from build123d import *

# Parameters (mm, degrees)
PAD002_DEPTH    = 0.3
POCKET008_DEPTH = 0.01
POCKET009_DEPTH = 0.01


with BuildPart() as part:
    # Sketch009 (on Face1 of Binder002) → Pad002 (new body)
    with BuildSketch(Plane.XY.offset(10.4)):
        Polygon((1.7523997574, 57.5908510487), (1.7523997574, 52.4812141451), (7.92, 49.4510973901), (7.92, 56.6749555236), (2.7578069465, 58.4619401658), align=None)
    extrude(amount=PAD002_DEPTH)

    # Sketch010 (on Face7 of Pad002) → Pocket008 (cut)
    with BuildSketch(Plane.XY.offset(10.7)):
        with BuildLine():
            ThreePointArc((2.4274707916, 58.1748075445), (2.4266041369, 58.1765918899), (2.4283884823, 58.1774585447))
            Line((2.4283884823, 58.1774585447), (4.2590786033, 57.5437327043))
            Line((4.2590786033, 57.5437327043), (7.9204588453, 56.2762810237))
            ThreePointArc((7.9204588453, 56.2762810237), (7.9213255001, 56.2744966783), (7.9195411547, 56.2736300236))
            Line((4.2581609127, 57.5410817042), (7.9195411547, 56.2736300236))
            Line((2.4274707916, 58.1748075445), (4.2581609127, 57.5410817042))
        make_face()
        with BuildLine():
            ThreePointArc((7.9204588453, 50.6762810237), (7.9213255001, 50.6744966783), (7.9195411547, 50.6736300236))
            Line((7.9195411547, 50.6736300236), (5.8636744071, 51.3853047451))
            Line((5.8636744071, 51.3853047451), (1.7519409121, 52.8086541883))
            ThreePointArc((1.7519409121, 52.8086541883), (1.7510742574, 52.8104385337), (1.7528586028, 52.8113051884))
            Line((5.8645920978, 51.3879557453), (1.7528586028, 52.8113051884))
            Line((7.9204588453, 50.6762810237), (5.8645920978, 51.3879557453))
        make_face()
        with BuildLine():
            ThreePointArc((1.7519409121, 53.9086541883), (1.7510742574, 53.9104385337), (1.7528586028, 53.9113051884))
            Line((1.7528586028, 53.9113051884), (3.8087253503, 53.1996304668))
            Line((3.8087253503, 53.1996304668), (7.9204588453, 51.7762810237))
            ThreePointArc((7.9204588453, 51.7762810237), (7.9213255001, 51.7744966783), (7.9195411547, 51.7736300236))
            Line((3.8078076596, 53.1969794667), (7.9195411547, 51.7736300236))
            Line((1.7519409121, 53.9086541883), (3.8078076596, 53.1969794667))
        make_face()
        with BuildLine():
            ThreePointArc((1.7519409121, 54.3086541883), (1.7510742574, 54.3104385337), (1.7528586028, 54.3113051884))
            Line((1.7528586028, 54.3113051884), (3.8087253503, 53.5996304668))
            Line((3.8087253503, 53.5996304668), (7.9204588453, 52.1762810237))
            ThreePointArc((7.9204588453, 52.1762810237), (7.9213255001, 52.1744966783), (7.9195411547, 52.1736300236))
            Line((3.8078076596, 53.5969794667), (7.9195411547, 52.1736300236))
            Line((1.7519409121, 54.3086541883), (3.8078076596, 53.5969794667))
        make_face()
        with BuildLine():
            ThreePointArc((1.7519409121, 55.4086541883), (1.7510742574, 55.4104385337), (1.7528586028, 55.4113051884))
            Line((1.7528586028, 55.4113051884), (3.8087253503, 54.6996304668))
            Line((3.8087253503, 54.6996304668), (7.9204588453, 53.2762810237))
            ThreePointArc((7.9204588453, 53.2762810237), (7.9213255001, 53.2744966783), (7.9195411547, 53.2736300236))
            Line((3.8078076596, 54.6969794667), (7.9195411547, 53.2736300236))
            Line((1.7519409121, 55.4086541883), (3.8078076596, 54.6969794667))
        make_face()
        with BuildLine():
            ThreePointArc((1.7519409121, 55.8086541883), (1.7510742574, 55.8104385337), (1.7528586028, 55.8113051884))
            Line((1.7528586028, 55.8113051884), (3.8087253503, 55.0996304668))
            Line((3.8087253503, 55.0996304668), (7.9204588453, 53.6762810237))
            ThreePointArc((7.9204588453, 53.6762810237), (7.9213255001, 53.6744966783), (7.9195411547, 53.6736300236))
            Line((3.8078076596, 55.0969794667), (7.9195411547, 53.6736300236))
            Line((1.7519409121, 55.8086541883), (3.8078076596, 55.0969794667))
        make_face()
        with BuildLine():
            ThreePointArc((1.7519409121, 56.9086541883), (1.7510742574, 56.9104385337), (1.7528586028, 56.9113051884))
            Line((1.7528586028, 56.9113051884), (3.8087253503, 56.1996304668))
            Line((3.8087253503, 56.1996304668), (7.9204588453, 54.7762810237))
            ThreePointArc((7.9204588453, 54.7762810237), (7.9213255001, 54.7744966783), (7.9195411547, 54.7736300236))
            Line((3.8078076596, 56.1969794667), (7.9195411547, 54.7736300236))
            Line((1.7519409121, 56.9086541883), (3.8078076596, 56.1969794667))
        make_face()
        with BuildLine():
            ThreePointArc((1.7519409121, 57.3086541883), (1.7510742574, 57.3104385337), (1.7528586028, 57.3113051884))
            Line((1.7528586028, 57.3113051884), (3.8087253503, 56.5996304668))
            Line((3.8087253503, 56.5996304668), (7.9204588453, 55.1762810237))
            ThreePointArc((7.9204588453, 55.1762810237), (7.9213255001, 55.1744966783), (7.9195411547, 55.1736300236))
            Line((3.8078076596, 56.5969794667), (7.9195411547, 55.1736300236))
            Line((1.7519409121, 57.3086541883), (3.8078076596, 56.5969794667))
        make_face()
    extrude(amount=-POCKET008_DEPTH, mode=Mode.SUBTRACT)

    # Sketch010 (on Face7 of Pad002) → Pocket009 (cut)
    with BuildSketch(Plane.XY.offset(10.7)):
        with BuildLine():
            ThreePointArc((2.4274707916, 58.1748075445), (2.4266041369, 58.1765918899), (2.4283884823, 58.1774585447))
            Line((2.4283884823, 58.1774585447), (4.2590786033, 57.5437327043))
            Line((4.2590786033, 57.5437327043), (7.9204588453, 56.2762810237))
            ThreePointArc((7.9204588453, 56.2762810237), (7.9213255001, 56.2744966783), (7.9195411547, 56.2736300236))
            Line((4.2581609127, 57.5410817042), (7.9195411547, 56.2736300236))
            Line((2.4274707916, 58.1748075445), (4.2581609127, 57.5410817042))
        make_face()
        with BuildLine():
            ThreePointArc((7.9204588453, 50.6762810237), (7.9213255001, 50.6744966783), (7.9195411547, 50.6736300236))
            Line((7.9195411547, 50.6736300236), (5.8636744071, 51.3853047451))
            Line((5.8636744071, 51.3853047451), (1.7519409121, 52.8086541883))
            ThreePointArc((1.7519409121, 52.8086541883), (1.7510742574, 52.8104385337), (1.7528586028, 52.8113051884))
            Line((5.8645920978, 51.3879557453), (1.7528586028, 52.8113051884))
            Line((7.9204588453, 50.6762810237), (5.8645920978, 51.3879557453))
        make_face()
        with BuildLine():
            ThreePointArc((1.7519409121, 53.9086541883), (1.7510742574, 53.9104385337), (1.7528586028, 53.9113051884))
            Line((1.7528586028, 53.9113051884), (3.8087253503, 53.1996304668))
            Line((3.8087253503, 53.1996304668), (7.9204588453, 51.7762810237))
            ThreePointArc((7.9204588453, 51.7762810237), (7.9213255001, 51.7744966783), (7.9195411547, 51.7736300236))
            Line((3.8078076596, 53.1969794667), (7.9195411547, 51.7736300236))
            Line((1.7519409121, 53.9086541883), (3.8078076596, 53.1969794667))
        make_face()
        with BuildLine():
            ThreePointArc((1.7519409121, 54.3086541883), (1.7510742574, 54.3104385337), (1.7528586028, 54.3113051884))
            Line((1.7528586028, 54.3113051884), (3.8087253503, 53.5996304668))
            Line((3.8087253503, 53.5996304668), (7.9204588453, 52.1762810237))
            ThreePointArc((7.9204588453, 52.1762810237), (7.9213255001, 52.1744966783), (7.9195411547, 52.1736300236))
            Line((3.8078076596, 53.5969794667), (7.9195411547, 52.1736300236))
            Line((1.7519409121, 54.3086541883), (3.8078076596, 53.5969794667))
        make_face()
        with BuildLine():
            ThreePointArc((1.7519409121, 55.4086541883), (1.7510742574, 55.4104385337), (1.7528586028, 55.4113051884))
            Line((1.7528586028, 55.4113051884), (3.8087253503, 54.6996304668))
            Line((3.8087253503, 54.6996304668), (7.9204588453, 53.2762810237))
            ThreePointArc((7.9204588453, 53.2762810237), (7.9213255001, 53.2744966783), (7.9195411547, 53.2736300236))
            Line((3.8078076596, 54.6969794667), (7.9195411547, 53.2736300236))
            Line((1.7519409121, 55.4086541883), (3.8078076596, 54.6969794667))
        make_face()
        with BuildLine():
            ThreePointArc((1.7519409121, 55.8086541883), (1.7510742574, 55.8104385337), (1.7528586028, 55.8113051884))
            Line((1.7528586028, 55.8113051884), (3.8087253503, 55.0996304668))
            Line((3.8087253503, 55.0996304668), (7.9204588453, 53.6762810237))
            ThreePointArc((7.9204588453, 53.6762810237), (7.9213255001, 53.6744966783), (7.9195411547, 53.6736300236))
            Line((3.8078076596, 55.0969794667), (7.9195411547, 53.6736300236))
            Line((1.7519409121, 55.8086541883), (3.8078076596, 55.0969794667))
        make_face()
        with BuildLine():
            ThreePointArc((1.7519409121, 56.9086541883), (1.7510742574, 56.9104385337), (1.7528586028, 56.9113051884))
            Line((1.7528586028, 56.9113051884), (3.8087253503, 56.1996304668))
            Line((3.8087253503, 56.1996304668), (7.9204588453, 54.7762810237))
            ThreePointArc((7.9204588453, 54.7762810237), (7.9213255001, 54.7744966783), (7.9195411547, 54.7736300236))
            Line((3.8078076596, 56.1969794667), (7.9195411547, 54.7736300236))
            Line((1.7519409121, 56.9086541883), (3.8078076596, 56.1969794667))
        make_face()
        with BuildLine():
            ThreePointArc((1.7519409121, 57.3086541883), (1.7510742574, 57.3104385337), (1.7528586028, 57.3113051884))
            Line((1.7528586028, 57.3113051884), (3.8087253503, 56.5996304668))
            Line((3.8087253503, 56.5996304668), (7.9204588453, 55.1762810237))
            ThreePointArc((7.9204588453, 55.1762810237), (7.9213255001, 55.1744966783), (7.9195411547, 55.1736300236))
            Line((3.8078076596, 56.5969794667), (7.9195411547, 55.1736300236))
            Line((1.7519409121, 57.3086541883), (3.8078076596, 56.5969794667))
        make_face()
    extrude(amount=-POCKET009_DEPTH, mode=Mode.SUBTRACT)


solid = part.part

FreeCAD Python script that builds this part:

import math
import FreeCAD as App
import Part
import Sketcher


def add_polygon(sketch, points):
    """Adds a closed chain of lines whose ends are joined by coincident constraints."""
    first, n = sketch.GeometryCount, len(points)
    for a, b in zip(points, points[1:] + points[:1]):
        sketch.addGeometry(Part.LineSegment(App.Vector(*a, 0), App.Vector(*b, 0)), False)
    for i in range(n):
        sketch.addConstraint(Sketcher.Constraint("Coincident", first + i, 2, first + (i + 1) % n, 1))

doc = App.newDocument("Part")
body = doc.addObject("PartDesign::Body", "Body")

sketch1 = body.newObject("Sketcher::SketchObject", "Sketch")
sketch1.AttachmentSupport = (doc.getObject("XY_Plane"), [""])
sketch1.MapMode = "FlatFace"
sketch1.AttachmentOffset = App.Placement(App.Vector(0, 0, 10.4), App.Rotation())
add_polygon(sketch1, [(1.8, 57.6), (1.8, 52.5), (7.9, 49.5), (7.9, 56.7), (2.8, 58.5)])
sketch1.addConstraint(Sketcher.Constraint("Vertical", 0))
sketch1.addConstraint(Sketcher.Constraint("Vertical", 2))
sketch1.addConstraint(Sketcher.Constraint("DistanceX", -1, 1, 1, 2, 7.92))
sketch1.addConstraint(Sketcher.Constraint("DistanceY", 2, 1, 2, 2, 7.223858))
sketch1.addConstraint(Sketcher.Constraint("DistanceX", -1, 1, 0, 2, 1.7524))
sketch1.addConstraint(Sketcher.Constraint("Distance", 4, 1.330278))
sketch1.addConstraint(Sketcher.Constraint("DistanceY", 0, 2, 0, 1, 5.109637))
sketch1.addConstraint(Sketcher.Constraint("DistanceY", -1, 1, 3, 2, 58.46194))
sketch1.addConstraint(Sketcher.Constraint("DistanceY", -1, 1, 4, 2, 57.590851))
sketch1.addConstraint(Sketcher.Constraint("DistanceY", 0, 2, 2, 2, 4.193741))
pad1 = body.newObject("PartDesign::Pad", "Pad")
pad1.Profile = sketch1
pad1.Length = 0.3

sketch2 = body.newObject("Sketcher::SketchObject", "Sketch001")
sketch2.AttachmentSupport = (doc.getObject("XY_Plane"), [""])
sketch2.MapMode = "FlatFace"
sketch2.AttachmentOffset = App.Placement(App.Vector(0, 0, 10.7), App.Rotation())
sketch2.addGeometry(Part.ArcOfCircle(Part.Circle(App.Vector(2.4279, 58.1761, 0), App.Vector(0, 0, 1), 0.0014), math.radians(71), math.radians(251)), False)
sketch2.addGeometry(Part.LineSegment(App.Vector(2.4275, 58.1748, 0), App.Vector(4.2582, 57.5411, 0)), False)
sketch2.addGeometry(Part.LineSegment(App.Vector(4.2582, 57.5411, 0), App.Vector(7.9195, 56.2736, 0)), False)
sketch2.addGeometry(Part.ArcOfCircle(Part.Circle(App.Vector(7.92, 56.275, 0), App.Vector(0, 0, 1), 0.0014), math.radians(-109), math.radians(71)), False)
sketch2.addGeometry(Part.LineSegment(App.Vector(7.9205, 56.2763, 0), App.Vector(4.2591, 57.5437, 0)), False)
sketch2.addGeometry(Part.LineSegment(App.Vector(4.2591, 57.5437, 0), App.Vector(2.4284, 58.1775, 0)), False)
sketch2.addGeometry(Part.ArcOfCircle(Part.Circle(App.Vector(7.92, 50.675, 0), App.Vector(0, 0, 1), 0.0014), math.radians(-109), math.radians(71)), False)
sketch2.addGeometry(Part.LineSegment(App.Vector(7.9205, 50.6763, 0), App.Vector(5.8646, 51.388, 0)), False)
sketch2.addGeometry(Part.LineSegment(App.Vector(5.8646, 51.388, 0), App.Vector(1.7529, 52.8113, 0)), False)
sketch2.addGeometry(Part.ArcOfCircle(Part.Circle(App.Vector(1.7524, 52.81, 0), App.Vector(0, 0, 1), 0.0014), math.radians(71), math.radians(251)), False)
sketch2.addGeometry(Part.LineSegment(App.Vector(1.7519, 52.8087, 0), App.Vector(5.8637, 51.3853, 0)), False)
sketch2.addGeometry(Part.LineSegment(App.Vector(5.8637, 51.3853, 0), App.Vector(7.9195, 50.6736, 0)), False)
sketch2.addGeometry(Part.ArcOfCircle(Part.Circle(App.Vector(1.7524, 53.91, 0), App.Vector(0, 0, 1), 0.0014), math.radians(71), math.radians(251)), False)
sketch2.addGeometry(Part.LineSegment(App.Vector(1.7519, 53.9087, 0), App.Vector(3.8078, 53.197, 0)), False)
sketch2.addGeometry(Part.LineSegment(App.Vector(3.8078, 53.197, 0), App.Vector(7.9195, 51.7736, 0)), False)
sketch2.addGeometry(Part.ArcOfCircle(Part.Circle(App.Vector(7.92, 51.775, 0), App.Vector(0, 0, 1), 0.0014), math.radians(-109), math.radians(71)), False)
sketch2.addGeometry(Part.LineSegment(App.Vector(7.9205, 51.7763, 0), App.Vector(3.8087, 53.1996, 0)), False)
sketch2.addGeometry(Part.LineSegment(App.Vector(3.8087, 53.1996, 0), App.Vector(1.7529, 53.9113, 0)), False)
sketch2.addGeometry(Part.ArcOfCircle(Part.Circle(App.Vector(1.7524, 54.31, 0), App.Vector(0, 0, 1), 0.0014), math.radians(71), math.radians(251)), False)
sketch2.addGeometry(Part.LineSegment(App.Vector(1.7519, 54.3087, 0), App.Vector(3.8078, 53.597, 0)), False)
sketch2.addGeometry(Part.LineSegment(App.Vector(3.8078, 53.597, 0), App.Vector(7.9195, 52.1736, 0)), False)
sketch2.addGeometry(Part.ArcOfCircle(Part.Circle(App.Vector(7.92, 52.175, 0), App.Vector(0, 0, 1), 0.0014), math.radians(-109), math.radians(71)), False)
sketch2.addGeometry(Part.LineSegment(App.Vector(7.9205, 52.1763, 0), App.Vector(3.8087, 53.5996, 0)), False)
sketch2.addGeometry(Part.LineSegment(App.Vector(3.8087, 53.5996, 0), App.Vector(1.7529, 54.3113, 0)), False)
sketch2.addGeometry(Part.ArcOfCircle(Part.Circle(App.Vector(1.7524, 55.41, 0), App.Vector(0, 0, 1), 0.0014), math.radians(71), math.radians(251)), False)
sketch2.addGeometry(Part.LineSegment(App.Vector(1.7519, 55.4087, 0), App.Vector(3.8078, 54.697, 0)), False)
sketch2.addGeometry(Part.LineSegment(App.Vector(3.8078, 54.697, 0), App.Vector(7.9195, 53.2736, 0)), False)
sketch2.addGeometry(Part.ArcOfCircle(Part.Circle(App.Vector(7.92, 53.275, 0), App.Vector(0, 0, 1), 0.0014), math.radians(-109), math.radians(71)), False)
sketch2.addGeometry(Part.LineSegment(App.Vector(7.9205, 53.2763, 0), App.Vector(3.8087, 54.6996, 0)), False)
sketch2.addGeometry(Part.LineSegment(App.Vector(3.8087, 54.6996, 0), App.Vector(1.7529, 55.4113, 0)), False)
sketch2.addGeometry(Part.ArcOfCircle(Part.Circle(App.Vector(1.7524, 55.81, 0), App.Vector(0, 0, 1), 0.0014), math.radians(71), math.radians(251)), False)
sketch2.addGeometry(Part.LineSegment(App.Vector(1.7519, 55.8087, 0), App.Vector(3.8078, 55.097, 0)), False)
sketch2.addGeometry(Part.LineSegment(App.Vector(3.8078, 55.097, 0), App.Vector(7.9195, 53.6736, 0)), False)
sketch2.addGeometry(Part.ArcOfCircle(Part.Circle(App.Vector(7.92, 53.675, 0), App.Vector(0, 0, 1), 0.0014), math.radians(-109), math.radians(71)), False)
sketch2.addGeometry(Part.LineSegment(App.Vector(7.9205, 53.6763, 0), App.Vector(3.8087, 55.0996, 0)), False)
sketch2.addGeometry(Part.LineSegment(App.Vector(3.8087, 55.0996, 0), App.Vector(1.7529, 55.8113, 0)), False)
sketch2.addGeometry(Part.ArcOfCircle(Part.Circle(App.Vector(1.7524, 56.91, 0), App.Vector(0, 0, 1), 0.0014), math.radians(71), math.radians(251)), False)
sketch2.addGeometry(Part.LineSegment(App.Vector(1.7519, 56.9087, 0), App.Vector(3.8078, 56.197, 0)), False)
sketch2.addGeometry(Part.LineSegment(App.Vector(3.8078, 56.197, 0), App.Vector(7.9195, 54.7736, 0)), False)
sketch2.addGeometry(Part.ArcOfCircle(Part.Circle(App.Vector(7.92, 54.775, 0), App.Vector(0, 0, 1), 0.0014), math.radians(-109), math.radians(71)), False)
sketch2.addGeometry(Part.LineSegment(App.Vector(7.9205, 54.7763, 0), App.Vector(3.8087, 56.1996, 0)), False)
sketch2.addGeometry(Part.LineSegment(App.Vector(3.8087, 56.1996, 0), App.Vector(1.7529, 56.9113, 0)), False)
sketch2.addGeometry(Part.ArcOfCircle(Part.Circle(App.Vector(1.7524, 57.31, 0), App.Vector(0, 0, 1), 0.0014), math.radians(71), math.radians(251)), False)
sketch2.addGeometry(Part.LineSegment(App.Vector(1.7519, 57.3087, 0), App.Vector(3.8078, 56.597, 0)), False)
sketch2.addGeometry(Part.LineSegment(App.Vector(3.8078, 56.597, 0), App.Vector(7.9195, 55.1736, 0)), False)
sketch2.addGeometry(Part.ArcOfCircle(Part.Circle(App.Vector(7.92, 55.175, 0), App.Vector(0, 0, 1), 0.0014), math.radians(-109), math.radians(71)), False)
sketch2.addGeometry(Part.LineSegment(App.Vector(7.9205, 55.1763, 0), App.Vector(3.8087, 56.5996, 0)), False)
sketch2.addGeometry(Part.LineSegment(App.Vector(3.8087, 56.5996, 0), App.Vector(1.7529, 57.3113, 0)), False)
sketch2.addConstraint(Sketcher.Constraint("Tangent", 0, 2, 1, 1))
sketch2.addConstraint(Sketcher.Constraint("Coincident", 1, 2, 2, 1))
sketch2.addConstraint(Sketcher.Constraint("Tangent", 2, 2, 3, 1))
sketch2.addConstraint(Sketcher.Constraint("Tangent", 3, 2, 4, 1))
sketch2.addConstraint(Sketcher.Constraint("Coincident", 4, 2, 5, 1))
sketch2.addConstraint(Sketcher.Constraint("Tangent", 5, 2, 0, 1))
sketch2.addConstraint(Sketcher.Constraint("Tangent", 6, 2, 7, 1))
sketch2.addConstraint(Sketcher.Constraint("Coincident", 7, 2, 8, 1))
sketch2.addConstraint(Sketcher.Constraint("Tangent", 8, 2, 9, 1))
sketch2.addConstraint(Sketcher.Constraint("Tangent", 9, 2, 10, 1))
sketch2.addConstraint(Sketcher.Constraint("Coincident", 10, 2, 11, 1))
sketch2.addConstraint(Sketcher.Constraint("Tangent", 11, 2, 6, 1))
sketch2.addConstraint(Sketcher.Constraint("Tangent", 12, 2, 13, 1))
sketch2.addConstraint(Sketcher.Constraint("Coincident", 13, 2, 14, 1))
sketch2.addConstraint(Sketcher.Constraint("Tangent", 14, 2, 15, 1))
sketch2.addConstraint(Sketcher.Constraint("Tangent", 15, 2, 16, 1))
sketch2.addConstraint(Sketcher.Constraint("Coincident", 16, 2, 17, 1))
sketch2.addConstraint(Sketcher.Constraint("Tangent", 17, 2, 12, 1))
sketch2.addConstraint(Sketcher.Constraint("Tangent", 18, 2, 19, 1))
sketch2.addConstraint(Sketcher.Constraint("Coincident", 19, 2, 20, 1))
sketch2.addConstraint(Sketcher.Constraint("Tangent", 20, 2, 21, 1))
sketch2.addConstraint(Sketcher.Constraint("Tangent", 21, 2, 22, 1))
sketch2.addConstraint(Sketcher.Constraint("Coincident", 22, 2, 23, 1))
sketch2.addConstraint(Sketcher.Constraint("Tangent", 23, 2, 18, 1))
sketch2.addConstraint(Sketcher.Constraint("Tangent", 24, 2, 25, 1))
sketch2.addConstraint(Sketcher.Constraint("Coincident", 25, 2, 26, 1))
sketch2.addConstraint(Sketcher.Constraint("Tangent", 26, 2, 27, 1))
sketch2.addConstraint(Sketcher.Constraint("Tangent", 27, 2, 28, 1))
sketch2.addConstraint(Sketcher.Constraint("Coincident", 28, 2, 29, 1))
sketch2.addConstraint(Sketcher.Constraint("Tangent", 29, 2, 24, 1))
sketch2.addConstraint(Sketcher.Constraint("Tangent", 30, 2, 31, 1))
sketch2.addConstraint(Sketcher.Constraint("Coincident", 31, 2, 32, 1))
sketch2.addConstraint(Sketcher.Constraint("Tangent", 32, 2, 33, 1))
sketch2.addConstraint(Sketcher.Constraint("Tangent", 33, 2, 34, 1))
sketch2.addConstraint(Sketcher.Constraint("Coincident", 34, 2, 35, 1))
sketch2.addConstraint(Sketcher.Constraint("Tangent", 35, 2, 30, 1))
sketch2.addConstraint(Sketcher.Constraint("Tangent", 36, 2, 37, 1))
sketch2.addConstraint(Sketcher.Constraint("Coincident", 37, 2, 38, 1))
sketch2.addConstraint(Sketcher.Constraint("Tangent", 38, 2, 39, 1))
sketch2.addConstraint(Sketcher.Constraint("Tangent", 39, 2, 40, 1))
sketch2.addConstraint(Sketcher.Constraint("Coincident", 40, 2, 41, 1))
sketch2.addConstraint(Sketcher.Constraint("Tangent", 41, 2, 36, 1))
sketch2.addConstraint(Sketcher.Constraint("Tangent", 42, 2, 43, 1))
sketch2.addConstraint(Sketcher.Constraint("Coincident", 43, 2, 44, 1))
sketch2.addConstraint(Sketcher.Constraint("Tangent", 44, 2, 45, 1))
sketch2.addConstraint(Sketcher.Constraint("Tangent", 45, 2, 46, 1))
sketch2.addConstraint(Sketcher.Constraint("Coincident", 46, 2, 47, 1))
sketch2.addConstraint(Sketcher.Constraint("Tangent", 47, 2, 42, 1))
sketch2.addConstraint(Sketcher.Constraint("Equal", 0, 3))
sketch2.addConstraint(Sketcher.Constraint("Equal", 3, 6))
sketch2.addConstraint(Sketcher.Constraint("Equal", 6, 9))
sketch2.addConstraint(Sketcher.Constraint("Equal", 9, 12))
sketch2.addConstraint(Sketcher.Constraint("Equal", 12, 15))
sketch2.addConstraint(Sketcher.Constraint("Equal", 15, 18))
sketch2.addConstraint(Sketcher.Constraint("Equal", 18, 21))
sketch2.addConstraint(Sketcher.Constraint("Equal", 21, 24))
sketch2.addConstraint(Sketcher.Constraint("Equal", 24, 27))
sketch2.addConstraint(Sketcher.Constraint("Equal", 27, 30))
sketch2.addConstraint(Sketcher.Constraint("Equal", 30, 33))
sketch2.addConstraint(Sketcher.Constraint("Equal", 33, 36))
sketch2.addConstraint(Sketcher.Constraint("Equal", 36, 39))
sketch2.addConstraint(Sketcher.Constraint("Equal", 39, 42))
sketch2.addConstraint(Sketcher.Constraint("Equal", 42, 45))
sketch2.addConstraint(Sketcher.Constraint("Parallel", 1, 2))
sketch2.addConstraint(Sketcher.Constraint("Parallel", 2, 4))
sketch2.addConstraint(Sketcher.Constraint("Parallel", 5, 7))
sketch2.addConstraint(Sketcher.Constraint("Parallel", 7, 8))
sketch2.addConstraint(Sketcher.Constraint("Parallel", 8, 10))
sketch2.addConstraint(Sketcher.Constraint("Parallel", 11, 13))
sketch2.addConstraint(Sketcher.Constraint("Parallel", 13, 14))
sketch2.addConstraint(Sketcher.Constraint("Parallel", 14, 16))
sketch2.addConstraint(Sketcher.Constraint("Parallel", 17, 19))
sketch2.addConstraint(Sketcher.Constraint("Parallel", 19, 20))
sketch2.addConstraint(Sketcher.Constraint("Parallel", 20, 22))
sketch2.addConstraint(Sketcher.Constraint("Parallel", 23, 25))
sketch2.addConstraint(Sketcher.Constraint("Parallel", 25, 26))
sketch2.addConstraint(Sketcher.Constraint("Parallel", 26, 28))
sketch2.addConstraint(Sketcher.Constraint("Parallel", 29, 31))
sketch2.addConstraint(Sketcher.Constraint("Parallel", 31, 32))
sketch2.addConstraint(Sketcher.Constraint("Parallel", 32, 34))
sketch2.addConstraint(Sketcher.Constraint("Parallel", 35, 37))
sketch2.addConstraint(Sketcher.Constraint("Parallel", 37, 38))
sketch2.addConstraint(Sketcher.Constraint("Parallel", 38, 40))
sketch2.addConstraint(Sketcher.Constraint("Parallel", 41, 43))
sketch2.addConstraint(Sketcher.Constraint("Parallel", 43, 44))
sketch2.addConstraint(Sketcher.Constraint("Parallel", 44, 46))
sketch2.addConstraint(Sketcher.Constraint("Vertical", 3, 3, 6, 3))
sketch2.addConstraint(Sketcher.Constraint("Vertical", 9, 3, 12, 3))
sketch2.addConstraint(Sketcher.Constraint("Vertical", 6, 3, 15, 3))
sketch2.addConstraint(Sketcher.Constraint("Vertical", 12, 3, 18, 3))
sketch2.addConstraint(Sketcher.Constraint("Vertical", 15, 3, 21, 3))
sketch2.addConstraint(Sketcher.Constraint("Vertical", 18, 3, 24, 3))
sketch2.addConstraint(Sketcher.Constraint("Vertical", 21, 3, 27, 3))
sketch2.addConstraint(Sketcher.Constraint("Vertical", 24, 3, 30, 3))
sketch2.addConstraint(Sketcher.Constraint("Vertical", 27, 3, 33, 3))
sketch2.addConstraint(Sketcher.Constraint("Vertical", 30, 3, 36, 3))
sketch2.addConstraint(Sketcher.Constraint("Vertical", 33, 3, 39, 3))
sketch2.addConstraint(Sketcher.Constraint("Vertical", 36, 3, 42, 3))
sketch2.addConstraint(Sketcher.Constraint("Vertical", 39, 3, 45, 3))
sketch2.addConstraint(Sketcher.Constraint("Vertical", 13, 2, 19, 2))
sketch2.addConstraint(Sketcher.Constraint("Vertical", 16, 2, 22, 2))
sketch2.addConstraint(Sketcher.Constraint("Vertical", 19, 2, 25, 2))
sketch2.addConstraint(Sketcher.Constraint("Vertical", 22, 2, 28, 2))
sketch2.addConstraint(Sketcher.Constraint("Vertical", 25, 2, 31, 2))
sketch2.addConstraint(Sketcher.Constraint("Vertical", 28, 2, 34, 2))
sketch2.addConstraint(Sketcher.Constraint("Vertical", 31, 2, 37, 2))
sketch2.addConstraint(Sketcher.Constraint("Vertical", 34, 2, 40, 2))
sketch2.addConstraint(Sketcher.Constraint("Vertical", 37, 2, 43, 2))
sketch2.addConstraint(Sketcher.Constraint("Vertical", 40, 2, 46, 2))
sketch2.addConstraint(Sketcher.Constraint("Equal", 2, 4))
sketch2.addConstraint(Sketcher.Constraint("Equal", 8, 10))
sketch2.addConstraint(Sketcher.Constraint("Equal", 11, 13))
sketch2.addConstraint(Sketcher.Constraint("Equal", 14, 16))
sketch2.addConstraint(Sketcher.Constraint("DistanceX", -1, 1, 3, 3, 7.92))
sketch2.addConstraint(Sketcher.Constraint("Radius", 0, 0.001403))
sketch2.addConstraint(Sketcher.Constraint("DistanceX", -1, 1, 9, 3, 1.7524))
sketch2.addConstraint(Sketcher.Constraint("Distance", 2, 3.87455))
sketch2.addConstraint(Sketcher.Constraint("Distance", 7, 2.175562))
sketch2.addConstraint(Sketcher.Constraint("DistanceX", -1, 1, 0, 3, 2.42793))
sketch2.addConstraint(Sketcher.Constraint("DistanceY", -1, 1, 9, 3, 52.80998))
sketch2.addConstraint(Sketcher.Constraint("DistanceY", -1, 1, 12, 3, 53.90998))
sketch2.addConstraint(Sketcher.Constraint("DistanceY", -1, 1, 18, 3, 54.30998))
sketch2.addConstraint(Sketcher.Constraint("DistanceY", -1, 1, 24, 3, 55.40998))
sketch2.addConstraint(Sketcher.Constraint("DistanceY", -1, 1, 30, 3, 55.80998))
sketch2.addConstraint(Sketcher.Constraint("DistanceY", -1, 1, 36, 3, 56.90998))
sketch2.addConstraint(Sketcher.Constraint("DistanceY", -1, 1, 42, 3, 57.30998))
sketch2.addConstraint(Sketcher.Constraint("DistanceX", -1, 1, 1, 2, 4.258161))
sketch2.addConstraint(Sketcher.Constraint("DistanceY", -1, 1, 1, 2, 57.541082))
pocket1 = body.newObject("PartDesign::Pocket", "Pocket")
pocket1.Profile = sketch2
pocket1.Length = 0.01

sketch3 = body.newObject("Sketcher::SketchObject", "Sketch002")
sketch3.AttachmentSupport = (doc.getObject("XY_Plane"), [""])
sketch3.MapMode = "FlatFace"
sketch3.AttachmentOffset = App.Placement(App.Vector(0, 0, 10.7), App.Rotation())
sketch3.addGeometry(Part.ArcOfCircle(Part.Circle(App.Vector(2.4279, 58.1761, 0), App.Vector(0, 0, 1), 0.0014), math.radians(71), math.radians(251)), False)
sketch3.addGeometry(Part.LineSegment(App.Vector(2.4275, 58.1748, 0), App.Vector(4.2582, 57.5411, 0)), False)
sketch3.addGeometry(Part.LineSegment(App.Vector(4.2582, 57.5411, 0), App.Vector(7.9195, 56.2736, 0)), False)
sketch3.addGeometry(Part.ArcOfCircle(Part.Circle(App.Vector(7.92, 56.275, 0), App.Vector(0, 0, 1), 0.0014), math.radians(-109), math.radians(71)), False)
sketch3.addGeometry(Part.LineSegment(App.Vector(7.9205, 56.2763, 0), App.Vector(4.2591, 57.5437, 0)), False)
sketch3.addGeometry(Part.LineSegment(App.Vector(4.2591, 57.5437, 0), App.Vector(2.4284, 58.1775, 0)), False)
sketch3.addGeometry(Part.ArcOfCircle(Part.Circle(App.Vector(7.92, 50.675, 0), App.Vector(0, 0, 1), 0.0014), math.radians(-109), math.radians(71)), False)
sketch3.addGeometry(Part.LineSegment(App.Vector(7.9205, 50.6763, 0), App.Vector(5.8646, 51.388, 0)), False)
sketch3.addGeometry(Part.LineSegment(App.Vector(5.8646, 51.388, 0), App.Vector(1.7529, 52.8113, 0)), False)
sketch3.addGeometry(Part.ArcOfCircle(Part.Circle(App.Vector(1.7524, 52.81, 0), App.Vector(0, 0, 1), 0.0014), math.radians(71), math.radians(251)), False)
sketch3.addGeometry(Part.LineSegment(App.Vector(1.7519, 52.8087, 0), App.Vector(5.8637, 51.3853, 0)), False)
sketch3.addGeometry(Part.LineSegment(App.Vector(5.8637, 51.3853, 0), App.Vector(7.9195, 50.6736, 0)), False)
sketch3.addGeometry(Part.ArcOfCircle(Part.Circle(App.Vector(1.7524, 53.91, 0), App.Vector(0, 0, 1), 0.0014), math.radians(71), math.radians(251)), False)
sketch3.addGeometry(Part.LineSegment(App.Vector(1.7519, 53.9087, 0), App.Vector(3.8078, 53.197, 0)), False)
sketch3.addGeometry(Part.LineSegment(App.Vector(3.8078, 53.197, 0), App.Vector(7.9195, 51.7736, 0)), False)
sketch3.addGeometry(Part.ArcOfCircle(Part.Circle(App.Vector(7.92, 51.775, 0), App.Vector(0, 0, 1), 0.0014), math.radians(-109), math.radians(71)), False)
sketch3.addGeometry(Part.LineSegment(App.Vector(7.9205, 51.7763, 0), App.Vector(3.8087, 53.1996, 0)), False)
sketch3.addGeometry(Part.LineSegment(App.Vector(3.8087, 53.1996, 0), App.Vector(1.7529, 53.9113, 0)), False)
sketch3.addGeometry(Part.ArcOfCircle(Part.Circle(App.Vector(1.7524, 54.31, 0), App.Vector(0, 0, 1), 0.0014), math.radians(71), math.radians(251)), False)
sketch3.addGeometry(Part.LineSegment(App.Vector(1.7519, 54.3087, 0), App.Vector(3.8078, 53.597, 0)), False)
sketch3.addGeometry(Part.LineSegment(App.Vector(3.8078, 53.597, 0), App.Vector(7.9195, 52.1736, 0)), False)
sketch3.addGeometry(Part.ArcOfCircle(Part.Circle(App.Vector(7.92, 52.175, 0), App.Vector(0, 0, 1), 0.0014), math.radians(-109), math.radians(71)), False)
sketch3.addGeometry(Part.LineSegment(App.Vector(7.9205, 52.1763, 0), App.Vector(3.8087, 53.5996, 0)), False)
sketch3.addGeometry(Part.LineSegment(App.Vector(3.8087, 53.5996, 0), App.Vector(1.7529, 54.3113, 0)), False)
sketch3.addGeometry(Part.ArcOfCircle(Part.Circle(App.Vector(1.7524, 55.41, 0), App.Vector(0, 0, 1), 0.0014), math.radians(71), math.radians(251)), False)
sketch3.addGeometry(Part.LineSegment(App.Vector(1.7519, 55.4087, 0), App.Vector(3.8078, 54.697, 0)), False)
sketch3.addGeometry(Part.LineSegment(App.Vector(3.8078, 54.697, 0), App.Vector(7.9195, 53.2736, 0)), False)
sketch3.addGeometry(Part.ArcOfCircle(Part.Circle(App.Vector(7.92, 53.275, 0), App.Vector(0, 0, 1), 0.0014), math.radians(-109), math.radians(71)), False)
sketch3.addGeometry(Part.LineSegment(App.Vector(7.9205, 53.2763, 0), App.Vector(3.8087, 54.6996, 0)), False)
sketch3.addGeometry(Part.LineSegment(App.Vector(3.8087, 54.6996, 0), App.Vector(1.7529, 55.4113, 0)), False)
sketch3.addGeometry(Part.ArcOfCircle(Part.Circle(App.Vector(1.7524, 55.81, 0), App.Vector(0, 0, 1), 0.0014), math.radians(71), math.radians(251)), False)
sketch3.addGeometry(Part.LineSegment(App.Vector(1.7519, 55.8087, 0), App.Vector(3.8078, 55.097, 0)), False)
sketch3.addGeometry(Part.LineSegment(App.Vector(3.8078, 55.097, 0), App.Vector(7.9195, 53.6736, 0)), False)
sketch3.addGeometry(Part.ArcOfCircle(Part.Circle(App.Vector(7.92, 53.675, 0), App.Vector(0, 0, 1), 0.0014), math.radians(-109), math.radians(71)), False)
sketch3.addGeometry(Part.LineSegment(App.Vector(7.9205, 53.6763, 0), App.Vector(3.8087, 55.0996, 0)), False)
sketch3.addGeometry(Part.LineSegment(App.Vector(3.8087, 55.0996, 0), App.Vector(1.7529, 55.8113, 0)), False)
sketch3.addGeometry(Part.ArcOfCircle(Part.Circle(App.Vector(1.7524, 56.91, 0), App.Vector(0, 0, 1), 0.0014), math.radians(71), math.radians(251)), False)
sketch3.addGeometry(Part.LineSegment(App.Vector(1.7519, 56.9087, 0), App.Vector(3.8078, 56.197, 0)), False)
sketch3.addGeometry(Part.LineSegment(App.Vector(3.8078, 56.197, 0), App.Vector(7.9195, 54.7736, 0)), False)
sketch3.addGeometry(Part.ArcOfCircle(Part.Circle(App.Vector(7.92, 54.775, 0), App.Vector(0, 0, 1), 0.0014), math.radians(-109), math.radians(71)), False)
sketch3.addGeometry(Part.LineSegment(App.Vector(7.9205, 54.7763, 0), App.Vector(3.8087, 56.1996, 0)), False)
sketch3.addGeometry(Part.LineSegment(App.Vector(3.8087, 56.1996, 0), App.Vector(1.7529, 56.9113, 0)), False)
sketch3.addGeometry(Part.ArcOfCircle(Part.Circle(App.Vector(1.7524, 57.31, 0), App.Vector(0, 0, 1), 0.0014), math.radians(71), math.radians(251)), False)
sketch3.addGeometry(Part.LineSegment(App.Vector(1.7519, 57.3087, 0), App.Vector(3.8078, 56.597, 0)), False)
sketch3.addGeometry(Part.LineSegment(App.Vector(3.8078, 56.597, 0), App.Vector(7.9195, 55.1736, 0)), False)
sketch3.addGeometry(Part.ArcOfCircle(Part.Circle(App.Vector(7.92, 55.175, 0), App.Vector(0, 0, 1), 0.0014), math.radians(-109), math.radians(71)), False)
sketch3.addGeometry(Part.LineSegment(App.Vector(7.9205, 55.1763, 0), App.Vector(3.8087, 56.5996, 0)), False)
sketch3.addGeometry(Part.LineSegment(App.Vector(3.8087, 56.5996, 0), App.Vector(1.7529, 57.3113, 0)), False)
sketch3.addConstraint(Sketcher.Constraint("Tangent", 0, 2, 1, 1))
sketch3.addConstraint(Sketcher.Constraint("Coincident", 1, 2, 2, 1))
sketch3.addConstraint(Sketcher.Constraint("Tangent", 2, 2, 3, 1))
sketch3.addConstraint(Sketcher.Constraint("Tangent", 3, 2, 4, 1))
sketch3.addConstraint(Sketcher.Constraint("Coincident", 4, 2, 5, 1))
sketch3.addConstraint(Sketcher.Constraint("Tangent", 5, 2, 0, 1))
sketch3.addConstraint(Sketcher.Constraint("Tangent", 6, 2, 7, 1))
sketch3.addConstraint(Sketcher.Constraint("Coincident", 7, 2, 8, 1))
sketch3.addConstraint(Sketcher.Constraint("Tangent", 8, 2, 9, 1))
sketch3.addConstraint(Sketcher.Constraint("Tangent", 9, 2, 10, 1))
sketch3.addConstraint(Sketcher.Constraint("Coincident", 10, 2, 11, 1))
sketch3.addConstraint(Sketcher.Constraint("Tangent", 11, 2, 6, 1))
sketch3.addConstraint(Sketcher.Constraint("Tangent", 12, 2, 13, 1))
sketch3.addConstraint(Sketcher.Constraint("Coincident", 13, 2, 14, 1))
sketch3.addConstraint(Sketcher.Constraint("Tangent", 14, 2, 15, 1))
sketch3.addConstraint(Sketcher.Constraint("Tangent", 15, 2, 16, 1))
sketch3.addConstraint(Sketcher.Constraint("Coincident", 16, 2, 17, 1))
sketch3.addConstraint(Sketcher.Constraint("Tangent", 17, 2, 12, 1))
sketch3.addConstraint(Sketcher.Constraint("Tangent", 18, 2, 19, 1))
sketch3.addConstraint(Sketcher.Constraint("Coincident", 19, 2, 20, 1))
sketch3.addConstraint(Sketcher.Constraint("Tangent", 20, 2, 21, 1))
sketch3.addConstraint(Sketcher.Constraint("Tangent", 21, 2, 22, 1))
sketch3.addConstraint(Sketcher.Constraint("Coincident", 22, 2, 23, 1))
sketch3.addConstraint(Sketcher.Constraint("Tangent", 23, 2, 18, 1))
sketch3.addConstraint(Sketcher.Constraint("Tangent", 24, 2, 25, 1))
sketch3.addConstraint(Sketcher.Constraint("Coincident", 25, 2, 26, 1))
sketch3.addConstraint(Sketcher.Constraint("Tangent", 26, 2, 27, 1))
sketch3.addConstraint(Sketcher.Constraint("Tangent", 27, 2, 28, 1))
sketch3.addConstraint(Sketcher.Constraint("Coincident", 28, 2, 29, 1))
sketch3.addConstraint(Sketcher.Constraint("Tangent", 29, 2, 24, 1))
sketch3.addConstraint(Sketcher.Constraint("Tangent", 30, 2, 31, 1))
sketch3.addConstraint(Sketcher.Constraint("Coincident", 31, 2, 32, 1))
sketch3.addConstraint(Sketcher.Constraint("Tangent", 32, 2, 33, 1))
sketch3.addConstraint(Sketcher.Constraint("Tangent", 33, 2, 34, 1))
sketch3.addConstraint(Sketcher.Constraint("Coincident", 34, 2, 35, 1))
sketch3.addConstraint(Sketcher.Constraint("Tangent", 35, 2, 30, 1))
sketch3.addConstraint(Sketcher.Constraint("Tangent", 36, 2, 37, 1))
sketch3.addConstraint(Sketcher.Constraint("Coincident", 37, 2, 38, 1))
sketch3.addConstraint(Sketcher.Constraint("Tangent", 38, 2, 39, 1))
sketch3.addConstraint(Sketcher.Constraint("Tangent", 39, 2, 40, 1))
sketch3.addConstraint(Sketcher.Constraint("Coincident", 40, 2, 41, 1))
sketch3.addConstraint(Sketcher.Constraint("Tangent", 41, 2, 36, 1))
sketch3.addConstraint(Sketcher.Constraint("Tangent", 42, 2, 43, 1))
sketch3.addConstraint(Sketcher.Constraint("Coincident", 43, 2, 44, 1))
sketch3.addConstraint(Sketcher.Constraint("Tangent", 44, 2, 45, 1))
sketch3.addConstraint(Sketcher.Constraint("Tangent", 45, 2, 46, 1))
sketch3.addConstraint(Sketcher.Constraint("Coincident", 46, 2, 47, 1))
sketch3.addConstraint(Sketcher.Constraint("Tangent", 47, 2, 42, 1))
sketch3.addConstraint(Sketcher.Constraint("Equal", 0, 3))
sketch3.addConstraint(Sketcher.Constraint("Equal", 3, 6))
sketch3.addConstraint(Sketcher.Constraint("Equal", 6, 9))
sketch3.addConstraint(Sketcher.Constraint("Equal", 9, 12))
sketch3.addConstraint(Sketcher.Constraint("Equal", 12, 15))
sketch3.addConstraint(Sketcher.Constraint("Equal", 15, 18))
sketch3.addConstraint(Sketcher.Constraint("Equal", 18, 21))
sketch3.addConstraint(Sketcher.Constraint("Equal", 21, 24))
sketch3.addConstraint(Sketcher.Constraint("Equal", 24, 27))
sketch3.addConstraint(Sketcher.Constraint("Equal", 27, 30))
sketch3.addConstraint(Sketcher.Constraint("Equal", 30, 33))
sketch3.addConstraint(Sketcher.Constraint("Equal", 33, 36))
sketch3.addConstraint(Sketcher.Constraint("Equal", 36, 39))
sketch3.addConstraint(Sketcher.Constraint("Equal", 39, 42))
sketch3.addConstraint(Sketcher.Constraint("Equal", 42, 45))
sketch3.addConstraint(Sketcher.Constraint("Parallel", 1, 2))
sketch3.addConstraint(Sketcher.Constraint("Parallel", 2, 4))
sketch3.addConstraint(Sketcher.Constraint("Parallel", 5, 7))
sketch3.addConstraint(Sketcher.Constraint("Parallel", 7, 8))
sketch3.addConstraint(Sketcher.Constraint("Parallel", 8, 10))
sketch3.addConstraint(Sketcher.Constraint("Parallel", 11, 13))
sketch3.addConstraint(Sketcher.Constraint("Parallel", 13, 14))
sketch3.addConstraint(Sketcher.Constraint("Parallel", 14, 16))
sketch3.addConstraint(Sketcher.Constraint("Parallel", 17, 19))
sketch3.addConstraint(Sketcher.Constraint("Parallel", 19, 20))
sketch3.addConstraint(Sketcher.Constraint("Parallel", 20, 22))
sketch3.addConstraint(Sketcher.Constraint("Parallel", 23, 25))
sketch3.addConstraint(Sketcher.Constraint("Parallel", 25, 26))
sketch3.addConstraint(Sketcher.Constraint("Parallel", 26, 28))
sketch3.addConstraint(Sketcher.Constraint("Parallel", 29, 31))
sketch3.addConstraint(Sketcher.Constraint("Parallel", 31, 32))
sketch3.addConstraint(Sketcher.Constraint("Parallel", 32, 34))
sketch3.addConstraint(Sketcher.Constraint("Parallel", 35, 37))
sketch3.addConstraint(Sketcher.Constraint("Parallel", 37, 38))
sketch3.addConstraint(Sketcher.Constraint("Parallel", 38, 40))
sketch3.addConstraint(Sketcher.Constraint("Parallel", 41, 43))
sketch3.addConstraint(Sketcher.Constraint("Parallel", 43, 44))
sketch3.addConstraint(Sketcher.Constraint("Parallel", 44, 46))
sketch3.addConstraint(Sketcher.Constraint("Vertical", 3, 3, 6, 3))
sketch3.addConstraint(Sketcher.Constraint("Vertical", 9, 3, 12, 3))
sketch3.addConstraint(Sketcher.Constraint("Vertical", 6, 3, 15, 3))
sketch3.addConstraint(Sketcher.Constraint("Vertical", 12, 3, 18, 3))
sketch3.addConstraint(Sketcher.Constraint("Vertical", 15, 3, 21, 3))
sketch3.addConstraint(Sketcher.Constraint("Vertical", 18, 3, 24, 3))
sketch3.addConstraint(Sketcher.Constraint("Vertical", 21, 3, 27, 3))
sketch3.addConstraint(Sketcher.Constraint("Vertical", 24, 3, 30, 3))
sketch3.addConstraint(Sketcher.Constraint("Vertical", 27, 3, 33, 3))
sketch3.addConstraint(Sketcher.Constraint("Vertical", 30, 3, 36, 3))
sketch3.addConstraint(Sketcher.Constraint("Vertical", 33, 3, 39, 3))
sketch3.addConstraint(Sketcher.Constraint("Vertical", 36, 3, 42, 3))
sketch3.addConstraint(Sketcher.Constraint("Vertical", 39, 3, 45, 3))
sketch3.addConstraint(Sketcher.Constraint("Vertical", 13, 2, 19, 2))
sketch3.addConstraint(Sketcher.Constraint("Vertical", 16, 2, 22, 2))
sketch3.addConstraint(Sketcher.Constraint("Vertical", 19, 2, 25, 2))
sketch3.addConstraint(Sketcher.Constraint("Vertical", 22, 2, 28, 2))
sketch3.addConstraint(Sketcher.Constraint("Vertical", 25, 2, 31, 2))
sketch3.addConstraint(Sketcher.Constraint("Vertical", 28, 2, 34, 2))
sketch3.addConstraint(Sketcher.Constraint("Vertical", 31, 2, 37, 2))
sketch3.addConstraint(Sketcher.Constraint("Vertical", 34, 2, 40, 2))
sketch3.addConstraint(Sketcher.Constraint("Vertical", 37, 2, 43, 2))
sketch3.addConstraint(Sketcher.Constraint("Vertical", 40, 2, 46, 2))
sketch3.addConstraint(Sketcher.Constraint("Equal", 2, 4))
sketch3.addConstraint(Sketcher.Constraint("Equal", 8, 10))
sketch3.addConstraint(Sketcher.Constraint("Equal", 11, 13))
sketch3.addConstraint(Sketcher.Constraint("Equal", 14, 16))
sketch3.addConstraint(Sketcher.Constraint("DistanceX", -1, 1, 3, 3, 7.92))
sketch3.addConstraint(Sketcher.Constraint("Radius", 0, 0.001403))
sketch3.addConstraint(Sketcher.Constraint("DistanceX", -1, 1, 9, 3, 1.7524))
sketch3.addConstraint(Sketcher.Constraint("Distance", 2, 3.87455))
sketch3.addConstraint(Sketcher.Constraint("Distance", 7, 2.175562))
sketch3.addConstraint(Sketcher.Constraint("DistanceX", -1, 1, 0, 3, 2.42793))
sketch3.addConstraint(Sketcher.Constraint("DistanceY", -1, 1, 9, 3, 52.80998))
sketch3.addConstraint(Sketcher.Constraint("DistanceY", -1, 1, 12, 3, 53.90998))
sketch3.addConstraint(Sketcher.Constraint("DistanceY", -1, 1, 18, 3, 54.30998))
sketch3.addConstraint(Sketcher.Constraint("DistanceY", -1, 1, 24, 3, 55.40998))
sketch3.addConstraint(Sketcher.Constraint("DistanceY", -1, 1, 30, 3, 55.80998))
sketch3.addConstraint(Sketcher.Constraint("DistanceY", -1, 1, 36, 3, 56.90998))
sketch3.addConstraint(Sketcher.Constraint("DistanceY", -1, 1, 42, 3, 57.30998))
sketch3.addConstraint(Sketcher.Constraint("DistanceX", -1, 1, 1, 2, 4.258161))
sketch3.addConstraint(Sketcher.Constraint("DistanceY", -1, 1, 1, 2, 57.541082))
pocket2 = body.newObject("PartDesign::Pocket", "Pocket001")
pocket2.Profile = sketch3
pocket2.Length = 0.01

doc.recompute()
